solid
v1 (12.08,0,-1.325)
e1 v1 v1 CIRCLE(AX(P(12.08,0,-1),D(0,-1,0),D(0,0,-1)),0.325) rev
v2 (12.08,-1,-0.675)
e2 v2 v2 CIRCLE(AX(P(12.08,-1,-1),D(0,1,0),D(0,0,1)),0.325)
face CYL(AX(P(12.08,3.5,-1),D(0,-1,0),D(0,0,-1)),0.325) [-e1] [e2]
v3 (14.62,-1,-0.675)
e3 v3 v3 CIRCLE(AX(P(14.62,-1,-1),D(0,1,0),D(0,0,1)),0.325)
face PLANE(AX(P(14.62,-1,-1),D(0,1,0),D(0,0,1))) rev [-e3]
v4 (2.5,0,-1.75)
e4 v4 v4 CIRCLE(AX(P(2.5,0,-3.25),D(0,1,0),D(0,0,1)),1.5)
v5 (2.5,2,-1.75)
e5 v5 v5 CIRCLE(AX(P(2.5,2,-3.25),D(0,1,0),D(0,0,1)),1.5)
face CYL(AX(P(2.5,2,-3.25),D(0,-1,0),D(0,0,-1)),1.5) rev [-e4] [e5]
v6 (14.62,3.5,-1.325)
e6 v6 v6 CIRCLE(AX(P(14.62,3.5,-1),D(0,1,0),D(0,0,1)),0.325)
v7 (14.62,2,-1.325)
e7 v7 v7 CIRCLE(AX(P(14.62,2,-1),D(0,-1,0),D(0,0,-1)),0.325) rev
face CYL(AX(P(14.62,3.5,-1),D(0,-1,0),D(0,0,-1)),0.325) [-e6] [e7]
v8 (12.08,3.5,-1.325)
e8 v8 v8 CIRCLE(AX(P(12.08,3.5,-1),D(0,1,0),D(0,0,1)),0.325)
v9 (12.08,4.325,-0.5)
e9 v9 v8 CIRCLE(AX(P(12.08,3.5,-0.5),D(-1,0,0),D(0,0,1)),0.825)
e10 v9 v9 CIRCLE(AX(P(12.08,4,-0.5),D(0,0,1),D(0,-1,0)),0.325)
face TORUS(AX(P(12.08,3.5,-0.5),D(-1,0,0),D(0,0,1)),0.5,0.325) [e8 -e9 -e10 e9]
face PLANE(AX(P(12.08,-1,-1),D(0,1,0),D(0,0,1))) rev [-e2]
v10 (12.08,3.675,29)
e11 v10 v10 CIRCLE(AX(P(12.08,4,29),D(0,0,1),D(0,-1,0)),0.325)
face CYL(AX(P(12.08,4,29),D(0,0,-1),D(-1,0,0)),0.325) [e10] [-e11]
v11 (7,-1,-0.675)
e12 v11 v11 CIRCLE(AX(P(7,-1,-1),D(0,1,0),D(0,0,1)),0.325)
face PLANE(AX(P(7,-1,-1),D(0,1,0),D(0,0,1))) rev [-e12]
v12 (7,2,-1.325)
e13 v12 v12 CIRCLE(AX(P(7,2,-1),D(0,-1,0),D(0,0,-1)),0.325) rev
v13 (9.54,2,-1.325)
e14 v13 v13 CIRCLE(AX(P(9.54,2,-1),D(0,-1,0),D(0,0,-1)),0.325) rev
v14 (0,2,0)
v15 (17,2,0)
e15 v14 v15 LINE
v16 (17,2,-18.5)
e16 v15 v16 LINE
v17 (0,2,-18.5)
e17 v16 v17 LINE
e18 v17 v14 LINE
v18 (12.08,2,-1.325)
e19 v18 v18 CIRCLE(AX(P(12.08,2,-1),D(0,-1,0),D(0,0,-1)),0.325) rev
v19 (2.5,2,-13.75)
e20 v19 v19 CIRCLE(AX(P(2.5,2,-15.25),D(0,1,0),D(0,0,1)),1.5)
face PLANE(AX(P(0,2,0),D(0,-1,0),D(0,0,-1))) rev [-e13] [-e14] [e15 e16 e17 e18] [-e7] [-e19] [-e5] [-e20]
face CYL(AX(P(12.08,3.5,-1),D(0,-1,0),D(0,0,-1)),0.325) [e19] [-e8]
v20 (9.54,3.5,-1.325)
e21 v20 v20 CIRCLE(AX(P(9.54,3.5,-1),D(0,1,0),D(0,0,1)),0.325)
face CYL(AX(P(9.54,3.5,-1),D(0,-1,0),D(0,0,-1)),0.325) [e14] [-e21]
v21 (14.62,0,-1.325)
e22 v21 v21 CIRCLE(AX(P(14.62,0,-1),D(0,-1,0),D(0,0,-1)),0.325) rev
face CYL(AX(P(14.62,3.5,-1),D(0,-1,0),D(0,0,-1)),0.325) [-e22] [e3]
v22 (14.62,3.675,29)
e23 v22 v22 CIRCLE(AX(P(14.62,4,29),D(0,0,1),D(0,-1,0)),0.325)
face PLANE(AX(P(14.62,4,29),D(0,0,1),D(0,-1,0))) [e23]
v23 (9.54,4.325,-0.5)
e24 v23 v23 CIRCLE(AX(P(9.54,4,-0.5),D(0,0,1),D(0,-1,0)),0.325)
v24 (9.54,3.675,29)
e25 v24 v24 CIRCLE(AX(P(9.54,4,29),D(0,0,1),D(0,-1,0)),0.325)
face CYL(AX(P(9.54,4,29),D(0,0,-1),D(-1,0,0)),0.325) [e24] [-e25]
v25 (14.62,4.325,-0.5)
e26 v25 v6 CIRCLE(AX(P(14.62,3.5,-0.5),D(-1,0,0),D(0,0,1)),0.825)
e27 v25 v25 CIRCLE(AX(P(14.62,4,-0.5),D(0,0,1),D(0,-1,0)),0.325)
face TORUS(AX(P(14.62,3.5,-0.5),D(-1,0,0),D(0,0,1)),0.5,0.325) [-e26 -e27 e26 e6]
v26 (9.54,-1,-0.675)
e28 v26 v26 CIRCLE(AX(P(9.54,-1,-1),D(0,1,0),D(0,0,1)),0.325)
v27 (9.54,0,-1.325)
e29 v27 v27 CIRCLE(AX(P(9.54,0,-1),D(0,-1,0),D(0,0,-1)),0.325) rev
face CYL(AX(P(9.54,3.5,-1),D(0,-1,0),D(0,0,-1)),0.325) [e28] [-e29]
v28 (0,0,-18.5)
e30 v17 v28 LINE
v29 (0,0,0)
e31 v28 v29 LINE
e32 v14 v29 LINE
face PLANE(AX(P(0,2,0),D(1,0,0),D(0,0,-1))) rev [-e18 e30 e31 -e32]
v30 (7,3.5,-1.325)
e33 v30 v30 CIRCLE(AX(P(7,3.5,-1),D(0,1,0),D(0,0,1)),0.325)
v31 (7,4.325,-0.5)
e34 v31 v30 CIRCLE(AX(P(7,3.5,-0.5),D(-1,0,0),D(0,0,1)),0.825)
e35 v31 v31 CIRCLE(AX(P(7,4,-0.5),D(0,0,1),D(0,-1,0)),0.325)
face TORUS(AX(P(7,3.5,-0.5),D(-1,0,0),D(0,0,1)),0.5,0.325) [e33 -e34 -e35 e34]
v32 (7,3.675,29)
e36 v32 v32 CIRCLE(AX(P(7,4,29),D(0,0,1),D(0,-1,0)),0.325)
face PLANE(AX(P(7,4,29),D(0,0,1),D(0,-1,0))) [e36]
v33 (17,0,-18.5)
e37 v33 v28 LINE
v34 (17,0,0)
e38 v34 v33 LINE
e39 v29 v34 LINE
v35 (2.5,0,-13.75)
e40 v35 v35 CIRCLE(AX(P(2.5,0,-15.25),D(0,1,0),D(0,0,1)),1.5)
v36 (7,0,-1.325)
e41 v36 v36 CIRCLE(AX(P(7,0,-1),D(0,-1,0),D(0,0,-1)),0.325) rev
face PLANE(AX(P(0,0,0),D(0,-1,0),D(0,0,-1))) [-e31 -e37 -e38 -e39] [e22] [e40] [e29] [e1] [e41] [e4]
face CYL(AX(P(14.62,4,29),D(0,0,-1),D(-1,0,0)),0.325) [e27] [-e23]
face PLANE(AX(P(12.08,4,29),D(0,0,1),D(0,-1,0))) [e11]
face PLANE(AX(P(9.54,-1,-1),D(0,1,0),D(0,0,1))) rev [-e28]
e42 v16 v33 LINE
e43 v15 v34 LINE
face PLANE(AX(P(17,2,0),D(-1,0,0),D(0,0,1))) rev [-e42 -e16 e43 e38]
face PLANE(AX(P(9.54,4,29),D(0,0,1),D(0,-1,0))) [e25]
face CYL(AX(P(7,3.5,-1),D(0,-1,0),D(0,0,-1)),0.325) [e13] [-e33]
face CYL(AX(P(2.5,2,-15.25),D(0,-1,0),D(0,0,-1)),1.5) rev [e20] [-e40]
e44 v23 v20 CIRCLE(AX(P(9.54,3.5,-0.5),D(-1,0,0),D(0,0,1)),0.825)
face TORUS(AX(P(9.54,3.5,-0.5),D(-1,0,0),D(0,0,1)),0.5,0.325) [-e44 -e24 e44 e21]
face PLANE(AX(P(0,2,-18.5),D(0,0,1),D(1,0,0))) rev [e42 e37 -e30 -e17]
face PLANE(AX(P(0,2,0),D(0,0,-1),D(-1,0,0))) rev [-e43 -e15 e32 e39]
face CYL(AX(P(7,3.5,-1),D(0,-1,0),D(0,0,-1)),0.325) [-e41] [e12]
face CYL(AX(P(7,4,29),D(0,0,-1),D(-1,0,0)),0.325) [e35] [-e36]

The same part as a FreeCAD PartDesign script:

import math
import FreeCAD as App
import Part
import Sketcher

doc = App.newDocument("Part")
body = doc.addObject("PartDesign::Body", "Body")

sketch1 = doc.addObject("Sketcher::SketchObject", "Sketch")
body.addObject(sketch1)
sketch1.AttachmentSupport = (doc.XZ_Plane, [""])
sketch1.MapMode = "FlatFace"
sketch1.addGeometry(Part.LineSegment(App.Vector(0, -18.5, 0), App.Vector(0, 0, 0)), False)
sketch1.addGeometry(Part.LineSegment(App.Vector(0, 0, 0), App.Vector(17, 0, 0)), False)
sketch1.addGeometry(Part.LineSegment(App.Vector(17, 0, 0), App.Vector(17, -18.5, 0)), False)
sketch1.addGeometry(Part.LineSegment(App.Vector(17, -18.5, 0), App.Vector(0, -18.5, 0)), False)
sketch1.addGeometry(Part.Circle(App.Vector(2.5, -3.25, 0), App.Vector(0, 0, 1), 1.5), False)
sketch1.addGeometry(Part.Circle(App.Vector(2.5, -15.25, 0), App.Vector(0, 0, 1), 1.5), False)
sketch1.addConstraint(Sketcher.Constraint("Coincident", 0, 2, 1, 1))
sketch1.addConstraint(Sketcher.Constraint("Coincident", 1, 2, 2, 1))
sketch1.addConstraint(Sketcher.Constraint("Coincident", 2, 2, 3, 1))
sketch1.addConstraint(Sketcher.Constraint("Coincident", 3, 2, 0, 1))
sketch1.addConstraint(Sketcher.Constraint("Vertical", 0))
sketch1.addConstraint(Sketcher.Constraint("Horizontal", 1))
sketch1.addConstraint(Sketcher.Constraint("Vertical", 2))
sketch1.addConstraint(Sketcher.Constraint("Horizontal", 3))
sketch1.addConstraint(Sketcher.Constraint("Coincident", 0, 2, -1, 1))
sketch1.addConstraint(Sketcher.Constraint("Equal", 4, 5))
sketch1.addConstraint(Sketcher.Constraint("Vertical", 4, 3, 5, 3))
sketch1.addConstraint(Sketcher.Constraint("Diameter", 4, 3.0))
sketch1.addConstraint(Sketcher.Constraint("DistanceX", 1, 1, 1, 2, 17.0))
sketch1.addConstraint(Sketcher.Constraint("DistanceY", 0, 1, 0, 2, 18.5))
sketch1.addConstraint(Sketcher.Constraint("DistanceY", 5, 3, 4, 3, 12.0))
sketch1.addConstraint(Sketcher.Constraint("DistanceX", -1, 1, 4, 3, 2.5))
sketch1.addConstraint(Sketcher.Constraint("DistanceY", 4, 3, -1, 1, 3.25))
pad1 = doc.addObject("PartDesign::Pad", "Pad")
body.addObject(pad1)
pad1.Profile = sketch1
pad1.Length = 2
pad1.Reversed = True

sketch2 = doc.addObject("Sketcher::SketchObject", "Sketch001")
body.addObject(sketch2)
sketch2.AttachmentSupport = (doc.XZ_Plane, [""])
sketch2.MapMode = "FlatFace"
sketch2.AttachmentOffset = App.Placement(App.Vector(0, 0, -2), App.Rotation())
sketch2.addGeometry(Part.Circle(App.Vector(7, -1, 0), App.Vector(0, 0, 1), 0.325), False)
sketch2.addConstraint(Sketcher.Constraint("Diameter", 0, 0.65))
sketch2.addConstraint(Sketcher.Constraint("DistanceX", -1, 1, 0, 3, 7.0))
sketch2.addConstraint(Sketcher.Constraint("DistanceY", 0, 3, -1, 1, 1.0))

sketch3 = doc.addObject("Sketcher::SketchObject", "Sketch002")
body.addObject(sketch3)
sketch3.AttachmentSupport = (doc.YZ_Plane, [""])
sketch3.MapMode = "FlatFace"
sketch3.AttachmentOffset = App.Placement(App.Vector(0, 0, 7), App.Rotation())
sketch3.addGeometry(Part.LineSegment(App.Vector(-1, -1, 0), App.Vector(3.5, -1, 0)), False)
sketch3.addGeometry(Part.ArcOfCircle(Part.Circle(App.Vector(3.5, -0.5, 0), App.Vector(0, 0, 1), 0.5), math.radians(-90), math.radians(0)), False)
sketch3.addGeometry(Part.LineSegment(App.Vector(4, -0.5, 0), App.Vector(4, 29, 0)), False)
sketch3.addConstraint(Sketcher.Constraint("Tangent", 0, 2, 1, 1))
sketch3.addConstraint(Sketcher.Constraint("Tangent", 1, 2, 2, 1))
sketch3.addConstraint(Sketcher.Constraint("Horizontal", 0))
sketch3.addConstraint(Sketcher.Constraint("Vertical", 2))
sketch3.addConstraint(Sketcher.Constraint("Radius", 1, 0.5))
sketch3.addConstraint(Sketcher.Constraint("DistanceX", 0, 1, 0, 2, 4.5))
sketch3.addConstraint(Sketcher.Constraint("DistanceY", 2, 1, 2, 2, 29.5))
sketch3.addConstraint(Sketcher.Constraint("DistanceX", 0, 1, -1, 1, 1.0))
sketch3.addConstraint(Sketcher.Constraint("DistanceY", 0, 1, -1, 1, 1.0))
doc.recompute()

additivepipe = doc.addObject("PartDesign::AdditivePipe", "AdditivePipe")
body.addObject(additivepipe)
additivepipe.Profile = sketch2
additivepipe.Spine = (sketch3, ["Edge1", "Edge2", "Edge3"])
doc.recompute()

linearpattern = doc.addObject("PartDesign::LinearPattern", "LinearPattern")
body.addObject(linearpattern)
linearpattern.Originals = [additivepipe]
linearpattern.Direction = (doc.X_Axis, [""])
linearpattern.Mode = "offset"
linearpattern.Offset = 2.54
linearpattern.Occurrences = 4
body.Tip = linearpattern

doc.recompute()
